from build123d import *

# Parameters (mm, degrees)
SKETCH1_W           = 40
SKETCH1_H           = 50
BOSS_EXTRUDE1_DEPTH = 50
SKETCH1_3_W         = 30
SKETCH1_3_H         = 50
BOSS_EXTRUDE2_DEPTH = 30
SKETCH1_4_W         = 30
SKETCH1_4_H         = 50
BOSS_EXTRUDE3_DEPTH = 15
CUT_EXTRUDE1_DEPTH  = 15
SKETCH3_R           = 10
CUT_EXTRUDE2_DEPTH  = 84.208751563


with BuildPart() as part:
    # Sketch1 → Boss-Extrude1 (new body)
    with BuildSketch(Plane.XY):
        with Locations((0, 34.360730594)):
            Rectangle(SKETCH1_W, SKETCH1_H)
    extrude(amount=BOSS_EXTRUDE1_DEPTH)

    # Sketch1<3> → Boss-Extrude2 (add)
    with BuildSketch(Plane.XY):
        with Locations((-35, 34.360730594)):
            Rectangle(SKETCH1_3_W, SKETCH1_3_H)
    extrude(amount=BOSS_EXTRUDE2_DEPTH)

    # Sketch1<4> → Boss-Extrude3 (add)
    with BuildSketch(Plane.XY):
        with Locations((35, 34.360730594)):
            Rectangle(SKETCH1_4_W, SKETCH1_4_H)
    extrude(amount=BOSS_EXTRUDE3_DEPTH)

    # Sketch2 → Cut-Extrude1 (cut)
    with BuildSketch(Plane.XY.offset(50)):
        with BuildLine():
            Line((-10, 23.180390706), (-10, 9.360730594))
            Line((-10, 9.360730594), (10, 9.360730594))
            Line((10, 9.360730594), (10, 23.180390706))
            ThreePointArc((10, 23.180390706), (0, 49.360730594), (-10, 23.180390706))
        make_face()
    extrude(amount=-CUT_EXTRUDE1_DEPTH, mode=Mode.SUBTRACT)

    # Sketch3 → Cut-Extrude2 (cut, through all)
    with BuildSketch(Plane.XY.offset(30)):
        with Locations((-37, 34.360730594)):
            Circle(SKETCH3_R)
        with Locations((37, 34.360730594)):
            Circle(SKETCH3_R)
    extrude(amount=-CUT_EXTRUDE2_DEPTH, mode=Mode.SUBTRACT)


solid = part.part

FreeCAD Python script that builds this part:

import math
import FreeCAD as App
import Part
import Sketcher

V = App.Vector
Q = App.Units.Quantity


def add_polygon(sketch, points):
    """Adds a closed chain of lines whose ends are joined by coincident constraints."""
    first, n = sketch.GeometryCount, len(points)
    for a, b in zip(points, points[1:] + points[:1]):
        sketch.addGeometry(Part.LineSegment(App.Vector(*a, 0), App.Vector(*b, 0)), False)
    for i in range(n):
        sketch.addConstraint(Sketcher.Constraint("Coincident", first + i, 2, first + (i + 1) % n, 1))

doc = App.newDocument("Part")
params = doc.addObject("Spreadsheet::Sheet", "Params")
for row, (alias, value) in enumerate([
    ("sketch1_width", "40 mm"),
    ("sketch1_height", "50 mm"),
    ("pad1_length", "50 mm"),
    ("sketch2_width", "30 mm"),
    ("sketch2_height", "50 mm"),
    ("pad2_length", "30 mm"),
    ("sketch3_width", "30 mm"),
    ("sketch3_height", "50 mm"),
    ("pad3_length", "15 mm"),
    ("sketch4_radius", "15 mm"),
    ("sketch4_width", "20 mm"),
    ("pocket1_length", "15 mm"),
    ("sketch5_diameter", "20 mm"),
], start=1):
    params.set(f"A{row}", alias)
    params.set(f"B{row}", "=" + value)
    params.setAlias(f"B{row}", alias)

body = doc.addObject("PartDesign::Body", "Body")

# Sketch on XY plane
sketch1 = body.newObject("Sketcher::SketchObject", "Sketch")
sketch1.AttachmentSupport = (doc.getObject("XY_Plane"), [""])
sketch1.MapMode = "FlatFace"
add_polygon(sketch1, [(-20, 59), (-20, 9), (20, 9), (20, 59)])  # lines 0-3
sketch1.addConstraint([
    Sketcher.Constraint("Vertical", 0),
    Sketcher.Constraint("Horizontal", 1),
    Sketcher.Constraint("Vertical", 2),
    Sketcher.Constraint("Horizontal", 3),
    Sketcher.Constraint("DistanceX", 1, 1, 1, 2, Q("40 mm")),
    Sketcher.Constraint("DistanceY", 0, 2, 0, 1, Q("50 mm")),
    Sketcher.Constraint("DistanceX", 0, 2, -1, 1, Q("20 mm")),
    Sketcher.Constraint("DistanceY", -1, 1, 0, 2, Q("9.360731 mm")),
])
sketch1.setExpression("Constraints[8]", "Params.sketch1_width")
sketch1.setExpression("Constraints[9]", "Params.sketch1_height")
pad1 = body.newObject("PartDesign::Pad", "Pad")
pad1.Profile = sketch1
pad1.setExpression("Length", "Params.pad1_length")

# Sketch on XY plane
sketch2 = body.newObject("Sketcher::SketchObject", "Sketch001")
sketch2.AttachmentSupport = (doc.getObject("XY_Plane"), [""])
sketch2.MapMode = "FlatFace"
add_polygon(sketch2, [(-50, 59), (-50, 9), (-20, 9), (-20, 59)])  # lines 0-3
sketch2.addConstraint([
    Sketcher.Constraint("Vertical", 0),
    Sketcher.Constraint("Horizontal", 1),
    Sketcher.Constraint("Vertical", 2),
    Sketcher.Constraint("Horizontal", 3),
    Sketcher.Constraint("DistanceX", 1, 1, 1, 2, Q("30 mm")),
    Sketcher.Constraint("DistanceY", 0, 2, 0, 1, Q("50 mm")),
    Sketcher.Constraint("DistanceX", 0, 2, -1, 1, Q("50 mm")),
    Sketcher.Constraint("DistanceY", -1, 1, 0, 2, Q("9.360731 mm")),
])
sketch2.setExpression("Constraints[8]", "Params.sketch2_width")
sketch2.setExpression("Constraints[9]", "Params.sketch2_height")
pad2 = body.newObject("PartDesign::Pad", "Pad001")
pad2.Profile = sketch2
pad2.setExpression("Length", "Params.pad2_length")

# Sketch on XY plane
sketch3 = body.newObject("Sketcher::SketchObject", "Sketch002")
sketch3.AttachmentSupport = (doc.getObject("XY_Plane"), [""])
sketch3.MapMode = "FlatFace"
add_polygon(sketch3, [(20, 59), (20, 9), (50, 9), (50, 59)])  # lines 0-3
sketch3.addConstraint([
    Sketcher.Constraint("Vertical", 0),
    Sketcher.Constraint("Horizontal", 1),
    Sketcher.Constraint("Vertical", 2),
    Sketcher.Constraint("Horizontal", 3),
    Sketcher.Constraint("DistanceX", 1, 1, 1, 2, Q("30 mm")),
    Sketcher.Constraint("DistanceY", 0, 2, 0, 1, Q("50 mm")),
    Sketcher.Constraint("DistanceX", -1, 1, 0, 2, Q("20 mm")),
    Sketcher.Constraint("DistanceY", -1, 1, 0, 2, Q("9.360731 mm")),
])
sketch3.setExpression("Constraints[8]", "Params.sketch3_width")
sketch3.setExpression("Constraints[9]", "Params.sketch3_height")
pad3 = body.newObject("PartDesign::Pad", "Pad002")
pad3.Profile = sketch3
pad3.setExpression("Length", "Params.pad3_length")

# Sketch on XY plane
sketch4 = body.newObject("Sketcher::SketchObject", "Sketch003")
sketch4.AttachmentSupport = (doc.getObject("XY_Plane"), [""])
sketch4.MapMode = "FlatFace"
sketch4.AttachmentOffset = App.Placement(V(0, 0, 50), App.Rotation())
sketch4.addGeometry([
    Part.LineSegment(V(-10, 23, 0), V(-10, 9, 0)),
    Part.LineSegment(V(-10, 9, 0), V(10, 9, 0)),
    Part.LineSegment(V(10, 9, 0), V(10, 23, 0)),
    Part.ArcOfCircle(Part.Circle(V(0, 34, 0), V(0, 0, 1), 15), math.radians(-48), math.radians(228)),
], False)
sketch4.addConstraint([
    Sketcher.Constraint("Coincident", 0, 2, 1, 1),
    Sketcher.Constraint("Coincident", 1, 2, 2, 1),
    Sketcher.Constraint("Coincident", 2, 2, 3, 1),
    Sketcher.Constraint("Coincident", 3, 2, 0, 1),
    Sketcher.Constraint("Vertical", 0),
    Sketcher.Constraint("Horizontal", 1),
    Sketcher.Constraint("Vertical", 2),
    Sketcher.Constraint("Symmetric", 2, 2, 3, 2, -2),
    Sketcher.Constraint("Radius", 3, Q("15 mm")),
    Sketcher.Constraint("DistanceX", 1, 1, 1, 2, Q("20 mm")),
    Sketcher.Constraint("DistanceY", 0, 2, 3, 3, Q("25 mm")),
    Sketcher.Constraint("DistanceY", -1, 1, 3, 3, Q("34.360731 mm")),
])
sketch4.setExpression("Constraints[8]", "Params.sketch4_radius")
sketch4.setExpression("Constraints[9]", "Params.sketch4_width")
pocket1 = body.newObject("PartDesign::Pocket", "Pocket")
pocket1.Profile = sketch4
pocket1.setExpression("Length", "Params.pocket1_length")

# Sketch on XY plane
sketch5 = body.newObject("Sketcher::SketchObject", "Sketch004")
sketch5.AttachmentSupport = (doc.getObject("XY_Plane"), [""])
sketch5.MapMode = "FlatFace"
sketch5.AttachmentOffset = App.Placement(V(0, 0, 30), App.Rotation())
sketch5.addGeometry([
    Part.Circle(V(-37, 34, 0), V(0, 0, 1), 10),
    Part.Circle(V(37, 34, 0), V(0, 0, 1), 10),
], False)
sketch5.addConstraint([
    Sketcher.Constraint("Equal", 0, 1),
    Sketcher.Constraint("Symmetric", 0, 3, 1, 3, -2),
    Sketcher.Constraint("Diameter", 0, Q("20 mm")),
    Sketcher.Constraint("DistanceX", 0, 3, -1, 1, Q("37 mm")),
    Sketcher.Constraint("DistanceY", -1, 1, 0, 3, Q("34.360731 mm")),
])
sketch5.setExpression("Constraints[2]", "Params.sketch5_diameter")
pocket2 = body.newObject("PartDesign::Pocket", "Pocket001")
pocket2.Profile = sketch5
pocket2.Type = "ThroughAll"

doc.recompute()
